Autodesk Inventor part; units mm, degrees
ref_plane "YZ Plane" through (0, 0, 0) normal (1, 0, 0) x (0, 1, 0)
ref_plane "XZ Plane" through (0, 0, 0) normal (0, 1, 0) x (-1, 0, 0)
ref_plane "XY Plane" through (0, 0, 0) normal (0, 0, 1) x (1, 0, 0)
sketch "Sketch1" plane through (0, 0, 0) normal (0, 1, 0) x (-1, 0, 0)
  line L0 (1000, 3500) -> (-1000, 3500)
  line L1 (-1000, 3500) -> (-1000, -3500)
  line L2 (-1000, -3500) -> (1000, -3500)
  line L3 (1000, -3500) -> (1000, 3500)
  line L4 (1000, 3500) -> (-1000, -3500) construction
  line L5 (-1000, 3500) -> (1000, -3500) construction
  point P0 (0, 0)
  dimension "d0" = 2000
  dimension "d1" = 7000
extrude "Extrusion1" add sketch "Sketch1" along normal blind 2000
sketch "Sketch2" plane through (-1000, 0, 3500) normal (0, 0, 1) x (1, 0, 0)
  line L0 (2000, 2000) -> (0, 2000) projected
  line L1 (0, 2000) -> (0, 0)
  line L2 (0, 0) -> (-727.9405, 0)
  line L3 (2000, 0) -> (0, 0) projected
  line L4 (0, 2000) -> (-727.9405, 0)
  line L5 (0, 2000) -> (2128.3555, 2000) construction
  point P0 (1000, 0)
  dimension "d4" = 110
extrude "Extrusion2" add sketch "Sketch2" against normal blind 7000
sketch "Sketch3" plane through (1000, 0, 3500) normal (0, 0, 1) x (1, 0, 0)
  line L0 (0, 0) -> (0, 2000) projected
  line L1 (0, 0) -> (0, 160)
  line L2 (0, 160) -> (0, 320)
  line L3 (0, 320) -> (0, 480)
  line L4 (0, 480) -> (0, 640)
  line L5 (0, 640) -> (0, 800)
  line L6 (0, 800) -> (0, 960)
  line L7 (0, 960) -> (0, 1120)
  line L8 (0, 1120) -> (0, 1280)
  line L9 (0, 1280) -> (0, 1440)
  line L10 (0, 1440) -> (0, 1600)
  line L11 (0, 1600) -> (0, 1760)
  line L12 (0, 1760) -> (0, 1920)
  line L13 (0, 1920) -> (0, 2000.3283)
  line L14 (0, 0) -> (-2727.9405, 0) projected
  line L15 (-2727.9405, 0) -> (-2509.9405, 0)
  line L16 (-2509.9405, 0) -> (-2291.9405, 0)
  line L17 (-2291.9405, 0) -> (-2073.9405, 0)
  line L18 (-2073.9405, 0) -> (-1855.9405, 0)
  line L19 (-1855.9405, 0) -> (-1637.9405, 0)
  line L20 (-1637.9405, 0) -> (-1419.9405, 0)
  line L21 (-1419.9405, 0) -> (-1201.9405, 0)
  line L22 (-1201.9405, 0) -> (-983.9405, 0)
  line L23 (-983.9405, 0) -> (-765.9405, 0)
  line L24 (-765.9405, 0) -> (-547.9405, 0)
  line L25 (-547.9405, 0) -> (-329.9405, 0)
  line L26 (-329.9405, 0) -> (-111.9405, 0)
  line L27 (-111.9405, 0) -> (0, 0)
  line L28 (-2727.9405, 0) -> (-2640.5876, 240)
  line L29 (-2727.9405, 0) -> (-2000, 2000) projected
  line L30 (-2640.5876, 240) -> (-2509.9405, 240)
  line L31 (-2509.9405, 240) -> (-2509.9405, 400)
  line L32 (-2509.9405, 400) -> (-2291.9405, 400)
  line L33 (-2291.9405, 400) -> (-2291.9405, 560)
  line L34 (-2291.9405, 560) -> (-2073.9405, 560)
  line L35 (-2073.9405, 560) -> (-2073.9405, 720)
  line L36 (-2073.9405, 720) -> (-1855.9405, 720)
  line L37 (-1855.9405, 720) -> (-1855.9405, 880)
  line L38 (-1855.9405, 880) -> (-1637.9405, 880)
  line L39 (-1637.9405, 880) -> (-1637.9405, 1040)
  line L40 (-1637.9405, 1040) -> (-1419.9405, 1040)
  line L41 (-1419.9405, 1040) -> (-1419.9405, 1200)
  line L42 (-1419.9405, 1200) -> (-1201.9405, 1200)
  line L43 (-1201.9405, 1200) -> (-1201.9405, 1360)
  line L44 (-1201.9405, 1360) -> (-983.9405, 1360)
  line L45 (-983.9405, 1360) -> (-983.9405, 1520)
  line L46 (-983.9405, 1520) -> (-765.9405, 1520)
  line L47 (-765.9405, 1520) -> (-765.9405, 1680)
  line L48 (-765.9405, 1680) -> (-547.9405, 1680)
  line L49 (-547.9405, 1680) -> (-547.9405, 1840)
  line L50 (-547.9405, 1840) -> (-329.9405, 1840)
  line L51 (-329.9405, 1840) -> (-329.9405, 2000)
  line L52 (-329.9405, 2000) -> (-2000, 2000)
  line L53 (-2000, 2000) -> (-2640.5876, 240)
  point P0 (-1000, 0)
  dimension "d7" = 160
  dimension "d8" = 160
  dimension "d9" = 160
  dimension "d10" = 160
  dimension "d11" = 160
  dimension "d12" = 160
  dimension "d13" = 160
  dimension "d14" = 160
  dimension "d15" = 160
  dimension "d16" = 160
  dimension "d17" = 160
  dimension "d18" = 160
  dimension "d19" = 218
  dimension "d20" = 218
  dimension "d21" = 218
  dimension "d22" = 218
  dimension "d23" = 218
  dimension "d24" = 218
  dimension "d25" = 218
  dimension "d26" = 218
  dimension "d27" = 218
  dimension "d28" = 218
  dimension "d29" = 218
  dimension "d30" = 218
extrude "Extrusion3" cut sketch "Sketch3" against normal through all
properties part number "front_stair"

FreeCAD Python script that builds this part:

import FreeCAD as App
import Part
import Sketcher

V = App.Vector
Q = App.Units.Quantity


def add_polygon(sketch, points):
    """Adds a closed chain of lines whose ends are joined by coincident constraints."""
    first, n = sketch.GeometryCount, len(points)
    for a, b in zip(points, points[1:] + points[:1]):
        sketch.addGeometry(Part.LineSegment(App.Vector(*a, 0), App.Vector(*b, 0)), False)
    for i in range(n):
        sketch.addConstraint(Sketcher.Constraint("Coincident", first + i, 2, first + (i + 1) % n, 1))

doc = App.newDocument("Part")
body = doc.addObject("PartDesign::Body", "Body")

# Sketch on XZ plane
sketch1 = doc.addObject("Sketcher::SketchObject", "Sketch")
body.addObject(sketch1)
sketch1.AttachmentSupport = (doc.XZ_Plane, [""])
sketch1.MapMode = "FlatFace"
add_polygon(sketch1, [(-1000, -3500), (-1000, 3500), (1000, 3500), (1000, -3500)])  # lines 0-3
sketch1.addConstraint(Sketcher.Constraint("Vertical", 0))
sketch1.addConstraint(Sketcher.Constraint("Horizontal", 1))
sketch1.addConstraint(Sketcher.Constraint("Vertical", 2))
sketch1.addConstraint(Sketcher.Constraint("Horizontal", 3))
sketch1.addConstraint(Sketcher.Constraint("Symmetric", 0, 2, 2, 2, -1, 1))
sketch1.addConstraint(Sketcher.Constraint("DistanceX", 1, 1, 1, 2, Q("2000 mm")))
sketch1.addConstraint(Sketcher.Constraint("DistanceY", 0, 1, 0, 2, Q("7000 mm")))
pad1 = doc.addObject("PartDesign::Pad", "Pad")
body.addObject(pad1)
pad1.Profile = sketch1
pad1.Length = 2000
pad1.Reversed = True

# Sketch on XY plane
sketch2 = doc.addObject("Sketcher::SketchObject", "Sketch001")
body.addObject(sketch2)
sketch2.AttachmentSupport = (doc.XY_Plane, [""])
sketch2.MapMode = "FlatFace"
sketch2.AttachmentOffset = App.Placement(V(0, 0, 3500), App.Rotation())
add_polygon(sketch2, [(-1000, 0), (-1000, 2000), (-1727.9405, 0)])  # lines 0-2
sketch2.addConstraint(Sketcher.Constraint("Vertical", 0))
sketch2.addConstraint(Sketcher.Constraint("Horizontal", 2))
sketch2.addConstraint(Sketcher.Constraint("PointOnObject", 1, 2, -1))
sketch2.addConstraint(Sketcher.Constraint("Angle", 1, Q("-110 deg")))
sketch2.addConstraint(Sketcher.Constraint("DistanceY", 0, 1, 0, 2, Q("2000 mm")))
sketch2.addConstraint(Sketcher.Constraint("DistanceX", 0, 2, -1, 1, Q("1000 mm")))
pad2 = doc.addObject("PartDesign::Pad", "Pad001")
body.addObject(pad2)
pad2.Profile = sketch2
pad2.Length = 7000
pad2.Reversed = True

# Sketch on XY plane
sketch3 = doc.addObject("Sketcher::SketchObject", "Sketch002")
body.addObject(sketch3)
sketch3.AttachmentSupport = (doc.XY_Plane, [""])
sketch3.MapMode = "FlatFace"
sketch3.AttachmentOffset = App.Placement(V(0, 0, 3500), App.Rotation())
add_polygon(sketch3, [(-1000, 2000), (-1640.5876, 240), (-1509.9405, 240), (-1509.9405, 400), (-1291.9405, 400), (-1291.9405, 560), (-1073.9405, 560), (-1073.9405, 720), (-855.9405, 720), (-855.9405, 880), (-637.9405, 880), (-637.9405, 1040), (-419.9405, 1040), (-419.9405, 1200), (-201.9405, 1200), (-201.9405, 1360), (16.0595, 1360), (16.0595, 1520), (234.0595, 1520), (234.0595, 1680), (452.0595, 1680), (452.0595, 1840), (670.0595, 1840), (670.0595, 2000)])  # lines 0-23
sketch3.addConstraint(Sketcher.Constraint("Horizontal", 1))
sketch3.addConstraint(Sketcher.Constraint("Vertical", 2))
sketch3.addConstraint(Sketcher.Constraint("Horizontal", 3))
sketch3.addConstraint(Sketcher.Constraint("Vertical", 4))
sketch3.addConstraint(Sketcher.Constraint("Horizontal", 5))
sketch3.addConstraint(Sketcher.Constraint("Vertical", 6))
sketch3.addConstraint(Sketcher.Constraint("Horizontal", 7))
sketch3.addConstraint(Sketcher.Constraint("Vertical", 8))
sketch3.addConstraint(Sketcher.Constraint("Horizontal", 9))
sketch3.addConstraint(Sketcher.Constraint("Vertical", 10))
sketch3.addConstraint(Sketcher.Constraint("Horizontal", 11))
sketch3.addConstraint(Sketcher.Constraint("Vertical", 12))
sketch3.addConstraint(Sketcher.Constraint("Horizontal", 13))
sketch3.addConstraint(Sketcher.Constraint("Vertical", 14))
sketch3.addConstraint(Sketcher.Constraint("Horizontal", 15))
sketch3.addConstraint(Sketcher.Constraint("Vertical", 16))
sketch3.addConstraint(Sketcher.Constraint("Horizontal", 17))
sketch3.addConstraint(Sketcher.Constraint("Vertical", 18))
sketch3.addConstraint(Sketcher.Constraint("Horizontal", 19))
sketch3.addConstraint(Sketcher.Constraint("Vertical", 20))
sketch3.addConstraint(Sketcher.Constraint("Horizontal", 21))
sketch3.addConstraint(Sketcher.Constraint("Vertical", 22))
sketch3.addConstraint(Sketcher.Constraint("Horizontal", 23))
sketch3.addConstraint(Sketcher.Constraint("Equal", 3, 5))
sketch3.addConstraint(Sketcher.Constraint("Equal", 5, 7))
sketch3.addConstraint(Sketcher.Constraint("Equal", 7, 9))
sketch3.addConstraint(Sketcher.Constraint("Equal", 9, 11))
sketch3.addConstraint(Sketcher.Constraint("Equal", 11, 13))
sketch3.addConstraint(Sketcher.Constraint("Equal", 13, 15))
sketch3.addConstraint(Sketcher.Constraint("Equal", 15, 17))
sketch3.addConstraint(Sketcher.Constraint("Equal", 17, 19))
sketch3.addConstraint(Sketcher.Constraint("Equal", 19, 21))
sketch3.addConstraint(Sketcher.Constraint("Equal", 2, 4))
sketch3.addConstraint(Sketcher.Constraint("Equal", 4, 6))
sketch3.addConstraint(Sketcher.Constraint("Equal", 6, 8))
sketch3.addConstraint(Sketcher.Constraint("Equal", 8, 10))
sketch3.addConstraint(Sketcher.Constraint("Equal", 10, 12))
sketch3.addConstraint(Sketcher.Constraint("Equal", 12, 14))
sketch3.addConstraint(Sketcher.Constraint("Equal", 14, 16))
sketch3.addConstraint(Sketcher.Constraint("Equal", 16, 18))
sketch3.addConstraint(Sketcher.Constraint("Equal", 18, 20))
sketch3.addConstraint(Sketcher.Constraint("Equal", 20, 22))
sketch3.addConstraint(Sketcher.Constraint("DistanceX", 3, 1, 3, 2, Q("218 mm")))
sketch3.addConstraint(Sketcher.Constraint("DistanceY", 2, 1, 2, 2, Q("160 mm")))
sketch3.addConstraint(Sketcher.Constraint("Angle", 0, Q("-110 deg")))
sketch3.addConstraint(Sketcher.Constraint("DistanceY", -1, 1, 0, 2, Q("240 mm")))
sketch3.addConstraint(Sketcher.Constraint("DistanceX", 23, 2, -1, 1, Q("1000 mm")))
sketch3.addConstraint(Sketcher.Constraint("DistanceX", 1, 1, 1, 2, Q("130.647 mm")))
pocket1 = doc.addObject("PartDesign::Pocket", "Pocket")
body.addObject(pocket1)
pocket1.Profile = sketch3
pocket1.Type = "ThroughAll"

doc.recompute()
